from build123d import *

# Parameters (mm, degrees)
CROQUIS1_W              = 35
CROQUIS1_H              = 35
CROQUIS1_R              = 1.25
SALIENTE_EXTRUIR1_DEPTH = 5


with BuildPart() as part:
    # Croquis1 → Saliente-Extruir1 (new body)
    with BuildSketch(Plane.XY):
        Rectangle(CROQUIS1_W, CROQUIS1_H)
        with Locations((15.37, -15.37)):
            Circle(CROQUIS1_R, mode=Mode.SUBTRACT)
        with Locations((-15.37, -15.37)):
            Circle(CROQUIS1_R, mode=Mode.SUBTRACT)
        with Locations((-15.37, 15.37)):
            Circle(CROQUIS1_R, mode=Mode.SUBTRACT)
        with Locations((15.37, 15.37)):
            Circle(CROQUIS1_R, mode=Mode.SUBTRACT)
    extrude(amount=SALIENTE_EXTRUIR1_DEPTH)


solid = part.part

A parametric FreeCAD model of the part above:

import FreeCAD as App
import Part
import Sketcher
Q = App.Units.Quantity


def add_polygon(sketch, points):
    """Adds a closed chain of lines whose ends are joined by coincident constraints."""
    first, n = sketch.GeometryCount, len(points)
    for a, b in zip(points, points[1:] + points[:1]):
        sketch.addGeometry(Part.LineSegment(App.Vector(*a, 0), App.Vector(*b, 0)), False)
    for i in range(n):
        sketch.addConstraint(Sketcher.Constraint("Coincident", first + i, 2, first + (i + 1) % n, 1))

doc = App.newDocument("Part")
body = doc.addObject("PartDesign::Body", "Body")

sketch1 = doc.addObject("Sketcher::SketchObject", "Sketch")
body.addObject(sketch1)
sketch1.AttachmentSupport = (doc.XY_Plane, [""])
sketch1.MapMode = "FlatFace"
add_polygon(sketch1, [(-17.5, 17.5), (-17.5, -17.5), (17.5, -17.5), (17.5, 17.5)])
sketch1.addGeometry(Part.Circle(App.Vector(-15.4, -15.4, 0), App.Vector(0, 0, 1), 1.2), False)
sketch1.addGeometry(Part.Circle(App.Vector(15.4, -15.4, 0), App.Vector(0, 0, 1), 1.2), False)
sketch1.addGeometry(Part.Circle(App.Vector(-15.4, 15.4, 0), App.Vector(0, 0, 1), 1.2), False)
sketch1.addGeometry(Part.Circle(App.Vector(15.4, 15.4, 0), App.Vector(0, 0, 1), 1.2), False)
sketch1.addConstraint([
    Sketcher.Constraint("Vertical", 0),
    Sketcher.Constraint("Horizontal", 1),
    Sketcher.Constraint("Vertical", 2),
    Sketcher.Constraint("Horizontal", 3),
    Sketcher.Constraint("Equal", 4, 5),
    Sketcher.Constraint("Equal", 5, 6),
    Sketcher.Constraint("Equal", 6, 7),
    Sketcher.Constraint("Symmetric", 5, 3, 6, 3, -1, 1),
    Sketcher.Constraint("Symmetric", 4, 3, 7, 3, -1, 1),
    Sketcher.Constraint("Symmetric", 0, 2, 2, 2, -1, 1),
    Sketcher.Constraint("Symmetric", 4, 3, 5, 3, -2),
    Sketcher.Constraint("Equal", 3, 0),
    Sketcher.Constraint("Diameter", 4, Q("2.5 mm")),
    Sketcher.Constraint("DistanceX", 1, 1, 1, 2, Q("35 mm")),
    Sketcher.Constraint("DistanceX", 4, 3, -1, 1, Q("15.37 mm")),
    Sketcher.Constraint("DistanceY", 4, 3, -1, 1, Q("15.37 mm")),
])
pad1 = doc.addObject("PartDesign::Pad", "Pad")
body.addObject(pad1)
pad1.Profile = sketch1
pad1.Length = 5

doc.recompute()
